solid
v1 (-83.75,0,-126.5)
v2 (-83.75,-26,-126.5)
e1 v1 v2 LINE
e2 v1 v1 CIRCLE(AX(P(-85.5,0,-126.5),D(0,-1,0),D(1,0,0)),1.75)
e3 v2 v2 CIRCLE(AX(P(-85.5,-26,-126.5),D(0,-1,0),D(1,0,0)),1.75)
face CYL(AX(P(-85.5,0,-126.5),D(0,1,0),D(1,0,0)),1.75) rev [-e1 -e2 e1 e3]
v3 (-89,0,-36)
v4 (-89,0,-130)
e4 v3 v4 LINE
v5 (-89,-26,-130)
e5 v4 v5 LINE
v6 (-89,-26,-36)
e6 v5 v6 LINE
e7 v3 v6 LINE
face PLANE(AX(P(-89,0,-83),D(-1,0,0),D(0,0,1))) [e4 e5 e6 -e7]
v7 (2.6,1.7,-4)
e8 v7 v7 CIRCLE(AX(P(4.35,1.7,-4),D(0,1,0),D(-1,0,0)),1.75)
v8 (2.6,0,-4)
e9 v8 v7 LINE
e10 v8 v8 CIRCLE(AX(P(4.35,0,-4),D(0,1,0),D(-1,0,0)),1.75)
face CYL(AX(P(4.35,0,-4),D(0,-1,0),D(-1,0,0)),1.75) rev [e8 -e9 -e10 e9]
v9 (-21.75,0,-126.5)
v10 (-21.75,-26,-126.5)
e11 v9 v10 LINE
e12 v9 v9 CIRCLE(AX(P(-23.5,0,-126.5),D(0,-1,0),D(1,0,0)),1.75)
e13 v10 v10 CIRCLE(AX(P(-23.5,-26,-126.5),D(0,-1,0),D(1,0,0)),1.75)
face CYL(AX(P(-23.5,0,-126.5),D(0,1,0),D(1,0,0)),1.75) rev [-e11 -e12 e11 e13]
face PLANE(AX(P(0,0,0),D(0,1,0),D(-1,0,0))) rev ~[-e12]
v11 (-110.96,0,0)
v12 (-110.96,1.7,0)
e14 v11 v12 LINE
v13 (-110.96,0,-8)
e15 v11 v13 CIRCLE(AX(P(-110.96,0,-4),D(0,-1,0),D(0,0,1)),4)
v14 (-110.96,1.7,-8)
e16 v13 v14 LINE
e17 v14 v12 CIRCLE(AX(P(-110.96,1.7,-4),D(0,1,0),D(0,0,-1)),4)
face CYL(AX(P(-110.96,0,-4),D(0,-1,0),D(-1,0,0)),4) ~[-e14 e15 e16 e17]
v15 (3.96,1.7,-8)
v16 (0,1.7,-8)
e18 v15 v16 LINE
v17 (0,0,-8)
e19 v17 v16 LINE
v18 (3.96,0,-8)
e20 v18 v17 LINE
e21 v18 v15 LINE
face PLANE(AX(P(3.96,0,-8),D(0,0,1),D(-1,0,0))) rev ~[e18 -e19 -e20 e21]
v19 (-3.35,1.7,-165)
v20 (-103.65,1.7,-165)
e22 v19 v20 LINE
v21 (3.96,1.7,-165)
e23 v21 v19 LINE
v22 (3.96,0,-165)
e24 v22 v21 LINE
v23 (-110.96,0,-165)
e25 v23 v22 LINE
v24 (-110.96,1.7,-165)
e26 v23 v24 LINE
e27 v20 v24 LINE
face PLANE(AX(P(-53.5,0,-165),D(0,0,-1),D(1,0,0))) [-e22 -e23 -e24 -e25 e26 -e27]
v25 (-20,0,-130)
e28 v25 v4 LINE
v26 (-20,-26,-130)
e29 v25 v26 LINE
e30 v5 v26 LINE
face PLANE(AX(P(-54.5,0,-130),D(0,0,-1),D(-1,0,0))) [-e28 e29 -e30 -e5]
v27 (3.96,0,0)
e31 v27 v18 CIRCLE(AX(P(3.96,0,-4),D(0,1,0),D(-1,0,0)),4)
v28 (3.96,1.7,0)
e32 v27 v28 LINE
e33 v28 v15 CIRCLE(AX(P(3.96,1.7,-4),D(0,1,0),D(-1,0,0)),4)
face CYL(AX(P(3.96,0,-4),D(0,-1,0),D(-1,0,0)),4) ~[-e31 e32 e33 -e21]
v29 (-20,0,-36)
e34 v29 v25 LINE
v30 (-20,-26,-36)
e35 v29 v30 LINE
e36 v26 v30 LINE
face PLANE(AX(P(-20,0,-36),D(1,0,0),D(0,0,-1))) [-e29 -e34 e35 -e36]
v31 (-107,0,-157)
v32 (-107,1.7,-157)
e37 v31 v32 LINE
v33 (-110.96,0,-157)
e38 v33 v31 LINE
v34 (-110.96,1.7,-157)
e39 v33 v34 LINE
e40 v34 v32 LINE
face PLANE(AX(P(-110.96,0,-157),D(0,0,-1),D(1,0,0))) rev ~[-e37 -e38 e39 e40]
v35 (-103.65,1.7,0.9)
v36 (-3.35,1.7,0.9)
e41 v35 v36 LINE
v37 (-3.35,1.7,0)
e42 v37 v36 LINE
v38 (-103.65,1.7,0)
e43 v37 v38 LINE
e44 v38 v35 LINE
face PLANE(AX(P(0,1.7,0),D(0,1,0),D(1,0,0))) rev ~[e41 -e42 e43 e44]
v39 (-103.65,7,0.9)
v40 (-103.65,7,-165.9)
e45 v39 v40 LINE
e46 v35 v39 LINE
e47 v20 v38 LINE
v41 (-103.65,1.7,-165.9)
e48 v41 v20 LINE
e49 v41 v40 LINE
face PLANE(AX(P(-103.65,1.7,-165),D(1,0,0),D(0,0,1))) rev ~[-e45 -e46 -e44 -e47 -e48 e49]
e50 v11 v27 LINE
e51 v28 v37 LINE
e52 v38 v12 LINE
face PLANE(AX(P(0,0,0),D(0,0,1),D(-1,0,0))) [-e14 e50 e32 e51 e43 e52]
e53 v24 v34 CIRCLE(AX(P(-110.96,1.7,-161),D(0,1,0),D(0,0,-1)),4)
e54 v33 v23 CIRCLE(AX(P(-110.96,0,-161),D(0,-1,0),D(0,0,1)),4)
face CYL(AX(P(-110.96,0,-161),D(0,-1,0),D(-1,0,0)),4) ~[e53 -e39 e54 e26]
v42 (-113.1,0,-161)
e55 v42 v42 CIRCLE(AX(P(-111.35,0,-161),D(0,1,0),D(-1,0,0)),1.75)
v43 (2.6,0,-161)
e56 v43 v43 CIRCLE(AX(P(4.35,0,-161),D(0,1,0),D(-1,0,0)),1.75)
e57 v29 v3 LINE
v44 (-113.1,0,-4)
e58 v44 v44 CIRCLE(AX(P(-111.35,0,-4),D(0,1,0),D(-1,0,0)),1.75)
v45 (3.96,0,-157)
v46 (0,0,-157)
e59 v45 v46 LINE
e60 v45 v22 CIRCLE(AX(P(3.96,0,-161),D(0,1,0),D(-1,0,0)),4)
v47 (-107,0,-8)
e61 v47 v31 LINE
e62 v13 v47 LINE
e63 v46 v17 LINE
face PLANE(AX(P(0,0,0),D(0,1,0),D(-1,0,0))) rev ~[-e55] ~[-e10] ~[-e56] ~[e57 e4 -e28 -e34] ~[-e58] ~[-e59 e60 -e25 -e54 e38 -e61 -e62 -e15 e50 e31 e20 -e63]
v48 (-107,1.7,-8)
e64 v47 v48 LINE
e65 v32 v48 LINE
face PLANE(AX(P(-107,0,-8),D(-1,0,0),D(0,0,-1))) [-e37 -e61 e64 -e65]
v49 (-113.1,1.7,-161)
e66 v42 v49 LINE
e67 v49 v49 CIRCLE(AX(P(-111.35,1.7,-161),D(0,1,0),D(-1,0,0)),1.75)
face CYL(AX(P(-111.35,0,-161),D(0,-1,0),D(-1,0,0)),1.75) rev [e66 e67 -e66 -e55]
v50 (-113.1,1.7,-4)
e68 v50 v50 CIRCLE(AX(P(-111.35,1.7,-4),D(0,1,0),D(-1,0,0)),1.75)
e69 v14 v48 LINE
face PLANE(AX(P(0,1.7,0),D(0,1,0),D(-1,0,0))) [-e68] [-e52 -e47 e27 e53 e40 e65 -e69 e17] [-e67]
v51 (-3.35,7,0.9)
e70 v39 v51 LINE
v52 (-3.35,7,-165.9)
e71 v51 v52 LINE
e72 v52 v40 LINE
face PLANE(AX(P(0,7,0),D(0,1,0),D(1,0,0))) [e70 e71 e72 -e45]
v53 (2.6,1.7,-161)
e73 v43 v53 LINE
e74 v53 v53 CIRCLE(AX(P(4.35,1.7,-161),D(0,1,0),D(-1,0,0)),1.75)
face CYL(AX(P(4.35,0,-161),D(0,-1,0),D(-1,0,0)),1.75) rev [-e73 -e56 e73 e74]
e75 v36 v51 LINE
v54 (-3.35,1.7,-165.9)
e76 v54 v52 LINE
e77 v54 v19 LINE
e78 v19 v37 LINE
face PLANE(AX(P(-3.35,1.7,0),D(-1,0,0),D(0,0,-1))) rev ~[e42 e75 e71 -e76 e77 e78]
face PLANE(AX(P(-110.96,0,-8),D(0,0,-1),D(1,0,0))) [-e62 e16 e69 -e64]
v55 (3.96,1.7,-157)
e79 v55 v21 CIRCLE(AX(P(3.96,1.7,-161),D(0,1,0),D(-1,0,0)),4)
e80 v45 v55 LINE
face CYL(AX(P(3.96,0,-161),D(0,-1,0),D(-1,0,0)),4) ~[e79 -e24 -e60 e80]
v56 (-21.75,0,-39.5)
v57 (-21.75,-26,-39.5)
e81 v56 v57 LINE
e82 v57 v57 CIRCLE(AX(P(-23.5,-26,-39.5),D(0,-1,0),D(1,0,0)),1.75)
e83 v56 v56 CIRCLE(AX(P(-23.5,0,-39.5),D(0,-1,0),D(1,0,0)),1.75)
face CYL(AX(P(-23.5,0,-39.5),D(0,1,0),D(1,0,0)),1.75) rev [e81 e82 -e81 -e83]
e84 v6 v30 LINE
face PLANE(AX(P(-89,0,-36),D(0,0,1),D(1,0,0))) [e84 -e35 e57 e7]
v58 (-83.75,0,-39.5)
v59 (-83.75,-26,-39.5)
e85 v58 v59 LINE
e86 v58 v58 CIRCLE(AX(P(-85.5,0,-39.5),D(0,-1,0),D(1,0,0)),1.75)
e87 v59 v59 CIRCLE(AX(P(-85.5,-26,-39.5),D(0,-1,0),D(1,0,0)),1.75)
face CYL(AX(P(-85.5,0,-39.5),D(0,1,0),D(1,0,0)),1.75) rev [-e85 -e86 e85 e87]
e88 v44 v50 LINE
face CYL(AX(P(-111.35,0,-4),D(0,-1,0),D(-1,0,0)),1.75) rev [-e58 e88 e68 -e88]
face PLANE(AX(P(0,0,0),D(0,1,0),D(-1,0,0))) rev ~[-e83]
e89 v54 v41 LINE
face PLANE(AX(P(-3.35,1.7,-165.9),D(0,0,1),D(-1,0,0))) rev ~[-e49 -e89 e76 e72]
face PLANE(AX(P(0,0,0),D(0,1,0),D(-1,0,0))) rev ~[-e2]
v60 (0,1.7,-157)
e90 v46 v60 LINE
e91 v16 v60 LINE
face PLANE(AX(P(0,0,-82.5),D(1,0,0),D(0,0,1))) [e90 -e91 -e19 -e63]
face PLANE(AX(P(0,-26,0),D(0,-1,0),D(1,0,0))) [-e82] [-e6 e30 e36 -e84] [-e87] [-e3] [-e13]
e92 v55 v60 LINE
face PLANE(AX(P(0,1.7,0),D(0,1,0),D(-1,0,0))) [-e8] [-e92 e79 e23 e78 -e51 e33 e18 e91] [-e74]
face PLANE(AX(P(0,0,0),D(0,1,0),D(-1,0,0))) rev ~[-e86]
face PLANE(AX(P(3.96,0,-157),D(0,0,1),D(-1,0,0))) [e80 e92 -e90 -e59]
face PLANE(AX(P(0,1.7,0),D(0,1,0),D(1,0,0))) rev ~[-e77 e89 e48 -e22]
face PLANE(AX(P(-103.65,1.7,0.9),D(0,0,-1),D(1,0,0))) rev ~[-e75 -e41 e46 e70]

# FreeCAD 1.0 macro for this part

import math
import FreeCAD as App
import Part
import Sketcher
from FreeCAD import Vector


def add_polygon(sketch, points):
    """Adds a closed chain of lines whose ends are joined by coincident constraints."""
    first, n = sketch.GeometryCount, len(points)
    for a, b in zip(points, points[1:] + points[:1]):
        sketch.addGeometry(Part.LineSegment(App.Vector(*a, 0), App.Vector(*b, 0)), False)
    for i in range(n):
        sketch.addConstraint(Sketcher.Constraint("Coincident", first + i, 2, first + (i + 1) % n, 1))

doc = App.newDocument("Part")
body = doc.addObject("PartDesign::Body", "Body")

# Sketch on XZ plane
sketch1 = body.newObject("Sketcher::SketchObject", "Sketch")
sketch1.AttachmentSupport = (doc.getObject("XZ_Plane"), [""])
sketch1.MapMode = "FlatFace"
sketch1.addGeometry([
    Part.ArcOfCircle(Part.Circle(Vector(4, -4, 0), Vector(0, 0, 1), 4), math.radians(-90), math.radians(90)),  # 0
    Part.LineSegment(Vector(4, -8, 0), Vector(0, -8, 0)),  # 1
    Part.LineSegment(Vector(0, -8, 0), Vector(0, -157, 0)),  # 2
    Part.LineSegment(Vector(0, -157, 0), Vector(4, -157, 0)),  # 3
    Part.ArcOfCircle(Part.Circle(Vector(4, -161, 0), Vector(0, 0, 1), 4), math.radians(-90), math.radians(90)),  # 4
    Part.LineSegment(Vector(4, -165, 0), Vector(-111, -165, 0)),  # 5
    Part.ArcOfCircle(Part.Circle(Vector(-111, -161, 0), Vector(0, 0, 1), 4), math.radians(90), math.radians(270)),  # 6
    Part.LineSegment(Vector(-111, -157, 0), Vector(-107, -157, 0)),  # 7
    Part.LineSegment(Vector(-107, -157, 0), Vector(-107, -8, 0)),  # 8
    Part.LineSegment(Vector(-107, -8, 0), Vector(-111, -8, 0)),  # 9
    Part.ArcOfCircle(Part.Circle(Vector(-111, -4, 0), Vector(0, 0, 1), 4), math.radians(90), math.radians(270)),  # 10
    Part.LineSegment(Vector(-111, 0, 0), Vector(4, 0, 0)),  # 11
    Part.Circle(Vector(4.3, -4, 0), Vector(0, 0, 1), 1.8),  # 12
    Part.Circle(Vector(-111.3, -4, 0), Vector(0, 0, 1), 1.8),  # 13
    Part.Circle(Vector(4.3, -161, 0), Vector(0, 0, 1), 1.8),  # 14
    Part.Circle(Vector(-111.3, -161, 0), Vector(0, 0, 1), 1.8),  # 15
], False)
sketch1.addConstraint([
    Sketcher.Constraint("Tangent", 0, 1, 1, 1),
    Sketcher.Constraint("Coincident", 1, 2, 2, 1),
    Sketcher.Constraint("Coincident", 2, 2, 3, 1),
    Sketcher.Constraint("Tangent", 3, 2, 4, 2),
    Sketcher.Constraint("Tangent", 4, 1, 5, 1),
    Sketcher.Constraint("Tangent", 5, 2, 6, 2),
    Sketcher.Constraint("Tangent", 6, 1, 7, 1),
    Sketcher.Constraint("Coincident", 7, 2, 8, 1),
    Sketcher.Constraint("Coincident", 8, 2, 9, 1),
    Sketcher.Constraint("Tangent", 9, 2, 10, 2),
    Sketcher.Constraint("Tangent", 10, 1, 11, 1),
    Sketcher.Constraint("Tangent", 11, 2, 0, 2),
    Sketcher.Constraint("Horizontal", 1),
    Sketcher.Constraint("Vertical", 2),
    Sketcher.Constraint("Horizontal", 3),
    Sketcher.Constraint("Horizontal", 5),
    Sketcher.Constraint("Horizontal", 7),
    Sketcher.Constraint("Vertical", 8),
    Sketcher.Constraint("Horizontal", 9),
    Sketcher.Constraint("Horizontal", 11),
    Sketcher.Constraint("Equal", 0, 4),
    Sketcher.Constraint("Equal", 4, 6),
    Sketcher.Constraint("Equal", 6, 10),
    Sketcher.Constraint("Equal", 12, 13),
    Sketcher.Constraint("Equal", 13, 14),
    Sketcher.Constraint("Equal", 14, 15),
    Sketcher.Constraint("PointOnObject", 1, 2, -2),
    Sketcher.Constraint("PointOnObject", 10, 1, -1),
    Sketcher.Constraint("Horizontal", 10, 3, 12, 3),
    Sketcher.Constraint("Horizontal", 12, 3, 13, 3),
    Sketcher.Constraint("Horizontal", 6, 3, 14, 3),
    Sketcher.Constraint("Horizontal", 14, 3, 15, 3),
    Sketcher.Constraint("Vertical", 0, 3, 4, 3),
    Sketcher.Constraint("Vertical", 6, 3, 10, 3),
    Sketcher.Constraint("Vertical", 12, 3, 14, 3),
    Sketcher.Constraint("Vertical", 13, 3, 15, 3),
    Sketcher.Constraint("Equal", 3, 7),
    Sketcher.Constraint("Radius", 0, 4.0),
    Sketcher.Constraint("Diameter", 12, 3.5),
    Sketcher.Constraint("DistanceY", 4, 1, -1, 1, 165.0),
    Sketcher.Constraint("DistanceX", 7, 2, -1, 1, 107.0),
    Sketcher.Constraint("DistanceX", 1, 2, 1, 1, 3.96),
    Sketcher.Constraint("DistanceX", 13, 3, 12, 3, 115.7),
    Sketcher.Constraint("DistanceX", -1, 1, 12, 3, 4.35),
])
pad1 = body.newObject("PartDesign::Pad", "Pad")
pad1.Profile = sketch1
pad1.Length = 1.7
pad1.Reversed = True

# Sketch on XZ plane
sketch2 = body.newObject("Sketcher::SketchObject", "Sketch001")
sketch2.AttachmentSupport = (doc.getObject("XZ_Plane"), [""])
sketch2.MapMode = "FlatFace"
sketch2.AttachmentOffset = App.Placement(Vector(0, 0, -1.7), App.Rotation())
add_polygon(sketch2, [(-104, 1), (-3, 1), (-3, -166), (-104, -166)])  # lines 0-3
sketch2.addConstraint([
    Sketcher.Constraint("Horizontal", 0),
    Sketcher.Constraint("Vertical", 1),
    Sketcher.Constraint("Horizontal", 2),
    Sketcher.Constraint("Vertical", 3),
    Sketcher.Constraint("DistanceX", 0, 1, 0, 2, 100.3),
    Sketcher.Constraint("DistanceY", 1, 2, 1, 1, 166.8),
    Sketcher.Constraint("DistanceY", -1, 1, 0, 2, 0.9),
    Sketcher.Constraint("DistanceX", 0, 2, -1, 1, 3.35),
])
pad2 = body.newObject("PartDesign::Pad", "Pad001")
pad2.Profile = sketch2
pad2.Length = 5.3
pad2.Reversed = True

# Sketch on XZ plane
sketch3 = body.newObject("Sketcher::SketchObject", "Sketch002")
sketch3.AttachmentSupport = (doc.getObject("XZ_Plane"), [""])
sketch3.MapMode = "FlatFace"
add_polygon(sketch3, [(-89, -36), (-89, -130), (-20, -130), (-20, -36)])  # lines 0-3
sketch3.addGeometry(Part.Circle(Vector(-85.5, -39.5, 0), Vector(0, 0, 1), 1.8), False)  # 4
sketch3.addGeometry(Part.Circle(Vector(-23.5, -39.5, 0), Vector(0, 0, 1), 1.8), False)  # 5
sketch3.addGeometry(Part.Circle(Vector(-85.5, -126.5, 0), Vector(0, 0, 1), 1.8), False)  # 6
sketch3.addGeometry(Part.Circle(Vector(-23.5, -126.5, 0), Vector(0, 0, 1), 1.8), False)  # 7
sketch3.addConstraint([
    Sketcher.Constraint("Vertical", 0),
    Sketcher.Constraint("Horizontal", 1),
    Sketcher.Constraint("Vertical", 2),
    Sketcher.Constraint("Horizontal", 3),
    Sketcher.Constraint("Equal", 4, 5),
    Sketcher.Constraint("Equal", 5, 6),
    Sketcher.Constraint("Equal", 6, 7),
    Sketcher.Constraint("Horizontal", 4, 3, 5, 3),
    Sketcher.Constraint("Horizontal", 6, 3, 7, 3),
    Sketcher.Constraint("Vertical", 4, 3, 6, 3),
    Sketcher.Constraint("Vertical", 5, 3, 7, 3),
    Sketcher.Constraint("Diameter", 4, 3.5),
    Sketcher.Constraint("DistanceX", 1, 1, 1, 2, 69.0),
    Sketcher.Constraint("DistanceY", 0, 2, 0, 1, 94.0),
    Sketcher.Constraint("DistanceX", 1, 2, -1, 1, 20.0),
    Sketcher.Constraint("DistanceY", 2, 2, -1, 1, 36.0),
    Sketcher.Constraint("DistanceX", 0, 2, 6, 3, 3.5),
    Sketcher.Constraint("DistanceY", 0, 2, 6, 3, 3.5),
    Sketcher.Constraint("DistanceX", 7, 3, 1, 2, 3.5),
    Sketcher.Constraint("DistanceY", 5, 3, 2, 2, 3.5),
])
pad3 = body.newObject("PartDesign::Pad", "Pad002")
pad3.Profile = sketch3
pad3.Length = 26

doc.recompute()
